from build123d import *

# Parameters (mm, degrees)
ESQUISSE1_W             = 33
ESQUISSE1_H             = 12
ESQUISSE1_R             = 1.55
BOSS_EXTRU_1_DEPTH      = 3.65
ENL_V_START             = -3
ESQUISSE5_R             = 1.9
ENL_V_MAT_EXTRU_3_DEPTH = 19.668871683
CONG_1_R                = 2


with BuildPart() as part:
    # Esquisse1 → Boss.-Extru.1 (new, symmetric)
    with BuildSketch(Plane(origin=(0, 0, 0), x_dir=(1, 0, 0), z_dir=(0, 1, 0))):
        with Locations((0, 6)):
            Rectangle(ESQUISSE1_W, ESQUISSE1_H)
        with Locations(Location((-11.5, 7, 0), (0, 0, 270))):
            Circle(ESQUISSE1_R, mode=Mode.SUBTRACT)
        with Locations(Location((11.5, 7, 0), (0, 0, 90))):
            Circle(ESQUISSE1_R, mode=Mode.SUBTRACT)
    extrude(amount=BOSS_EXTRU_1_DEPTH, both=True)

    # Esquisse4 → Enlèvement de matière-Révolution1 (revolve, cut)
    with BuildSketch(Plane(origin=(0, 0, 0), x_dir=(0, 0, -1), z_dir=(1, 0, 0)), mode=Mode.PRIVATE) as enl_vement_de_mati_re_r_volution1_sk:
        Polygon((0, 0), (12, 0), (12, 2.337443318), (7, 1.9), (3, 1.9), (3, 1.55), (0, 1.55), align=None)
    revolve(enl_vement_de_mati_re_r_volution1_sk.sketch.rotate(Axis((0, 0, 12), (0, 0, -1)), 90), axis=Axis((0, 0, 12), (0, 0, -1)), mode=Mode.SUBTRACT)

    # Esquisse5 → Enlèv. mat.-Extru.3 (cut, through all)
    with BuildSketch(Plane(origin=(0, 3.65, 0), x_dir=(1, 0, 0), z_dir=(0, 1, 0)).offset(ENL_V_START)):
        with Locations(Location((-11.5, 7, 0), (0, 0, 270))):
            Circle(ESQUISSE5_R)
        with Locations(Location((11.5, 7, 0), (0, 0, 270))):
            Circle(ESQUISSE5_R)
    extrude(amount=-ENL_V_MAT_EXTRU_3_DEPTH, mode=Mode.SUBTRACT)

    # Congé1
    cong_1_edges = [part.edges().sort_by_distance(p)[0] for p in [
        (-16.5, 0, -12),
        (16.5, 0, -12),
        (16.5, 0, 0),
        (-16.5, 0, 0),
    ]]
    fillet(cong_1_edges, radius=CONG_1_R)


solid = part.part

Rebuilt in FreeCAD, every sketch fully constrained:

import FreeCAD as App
import Part
import Sketcher
from FreeCAD import Vector
Q = App.Units.Quantity


def edges_at(feature, points):
    """Names of the edges that pass closest to the given points."""
    edges = feature.Shape.Edges
    near = lambda p: min(range(len(edges)), key=lambda i: edges[i].distToShape(Part.Vertex(*p))[0])
    return sorted({f"Edge{near(p) + 1}" for p in points})


def add_polygon(sketch, points):
    """Adds a closed chain of lines whose ends are joined by coincident constraints."""
    first, n = sketch.GeometryCount, len(points)
    for a, b in zip(points, points[1:] + points[:1]):
        sketch.addGeometry(Part.LineSegment(App.Vector(*a, 0), App.Vector(*b, 0)), False)
    for i in range(n):
        sketch.addConstraint(Sketcher.Constraint("Coincident", first + i, 2, first + (i + 1) % n, 1))

doc = App.newDocument("Part")
params = doc.addObject("Spreadsheet::Sheet", "Params")
for row, (alias, value) in enumerate([
    ("sketch1_diameter", "3.1 mm"),
    ("sketch1_width", "33 mm"),
    ("sketch1_height", "12 mm"),
    ("pad1_length", "7.3 mm"),
    ("sketch2_height", "12 mm"),
    ("sketch2_height2", "4 mm"),
    ("sketch2_height3", "3 mm"),
    ("sketch2_width", "0.35 mm"),
    ("sketch2_width2", "1.55 mm"),
    ("groove_angle", "360 deg"),
    ("sketch3_diameter", "3.8 mm"),
    ("fillet_radius", "2 mm"),
], start=1):
    params.set(f"A{row}", alias)
    params.set(f"B{row}", "=" + value)
    params.setAlias(f"B{row}", alias)

body = doc.addObject("PartDesign::Body", "Body")

sketch1 = body.newObject("Sketcher::SketchObject", "Sketch")
sketch1.AttachmentSupport = (doc.getObject("XZ_Plane"), [""])
sketch1.MapMode = "FlatFace"
add_polygon(sketch1, [(-16.5, -12), (-16.5, 0), (16.5, 0), (16.5, -12)])
sketch1.addGeometry(Part.Circle(Vector(-11.5, -7, 0), Vector(0, 0, 1), 1.6), False)
sketch1.addGeometry(Part.Circle(Vector(11.5, -7, 0), Vector(0, 0, 1), 1.6), False)
sketch1.addConstraint([
    Sketcher.Constraint("Vertical", 0),
    Sketcher.Constraint("Horizontal", 1),
    Sketcher.Constraint("Vertical", 2),
    Sketcher.Constraint("Horizontal", 3),
    Sketcher.Constraint("Equal", 4, 5),
    Sketcher.Constraint("Symmetric", 0, 2, 1, 2, -1, 1),
    Sketcher.Constraint("Symmetric", 4, 3, 5, 3, -2),
    Sketcher.Constraint("Diameter", 4, Q("3.1 mm")),
    Sketcher.Constraint("DistanceX", 1, 1, 1, 2, Q("33 mm")),
    Sketcher.Constraint("DistanceY", 0, 1, 0, 2, Q("12 mm")),
    Sketcher.Constraint("DistanceY", 4, 3, -1, 1, Q("7 mm")),
    Sketcher.Constraint("DistanceX", 4, 3, 5, 3, Q("23 mm")),
])
sketch1.setExpression("Constraints[11]", "Params.sketch1_diameter")
sketch1.setExpression("Constraints[12]", "Params.sketch1_width")
sketch1.setExpression("Constraints[13]", "Params.sketch1_height")
pad1 = body.newObject("PartDesign::Pad", "Pad")
pad1.Profile = sketch1
pad1.setExpression("Length", "Params.pad1_length")
pad1.Midplane = True

sketch2 = body.newObject("Sketcher::SketchObject", "Sketch001")
sketch2.AttachmentSupport = (doc.getObject("YZ_Plane"), [""])
sketch2.MapMode = "FlatFace"
add_polygon(sketch2, [(0, 0), (0, -12), (2.34, -12), (1.9, -7), (1.9, -3), (1.55, -3), (1.55, 0)])
sketch2.addConstraint([
    Sketcher.Constraint("Vertical", 0),
    Sketcher.Constraint("Horizontal", 1),
    Sketcher.Constraint("Vertical", 3),
    Sketcher.Constraint("Horizontal", 4),
    Sketcher.Constraint("Vertical", 5),
    Sketcher.Constraint("Horizontal", 6),
    Sketcher.Constraint("Coincident", 6, 2, -1, 1),
    Sketcher.Constraint("DistanceY", 0, 2, 0, 1, Q("12 mm")),
    Sketcher.Constraint("DistanceY", 3, 1, 3, 2, Q("4 mm")),
    Sketcher.Constraint("DistanceY", 5, 1, 5, 2, Q("3 mm")),
    Sketcher.Constraint("Angle", 2, Q("95 deg")),
    Sketcher.Constraint("DistanceX", 4, 2, 4, 1, Q("0.35 mm")),
    Sketcher.Constraint("DistanceX", 6, 2, 6, 1, Q("1.55 mm")),
])
sketch2.setExpression("Constraints[14]", "Params.sketch2_height")
sketch2.setExpression("Constraints[15]", "Params.sketch2_height2")
sketch2.setExpression("Constraints[16]", "Params.sketch2_height3")
sketch2.setExpression("Constraints[18]", "Params.sketch2_width")
sketch2.setExpression("Constraints[19]", "Params.sketch2_width2")
groove = body.newObject("PartDesign::Groove", "Groove")
groove.Profile = sketch2
groove.ReferenceAxis = (sketch2, ["V_Axis"])
groove.setExpression("Angle", "Params.groove_angle")

sketch3 = body.newObject("Sketcher::SketchObject", "Sketch002")
sketch3.AttachmentSupport = (doc.getObject("XZ_Plane"), [""])
sketch3.MapMode = "FlatFace"
sketch3.AttachmentOffset = App.Placement(Vector(0, 0, -0.65), App.Rotation())
sketch3.addGeometry([
    Part.Circle(Vector(-11.5, -7, 0), Vector(0, 0, 1), 1.9),
    Part.Circle(Vector(11.5, -7, 0), Vector(0, 0, 1), 1.9),
], False)
sketch3.addConstraint([
    Sketcher.Constraint("Equal", 0, 1),
    Sketcher.Constraint("Symmetric", 0, 3, 1, 3, -2),
    Sketcher.Constraint("Diameter", 0, Q("3.8 mm")),
    Sketcher.Constraint("DistanceY", 0, 3, -1, 1, Q("7 mm")),
    Sketcher.Constraint("DistanceX", 0, 3, 1, 3, Q("23 mm")),
])
sketch3.setExpression("Constraints[2]", "Params.sketch3_diameter")
pocket1 = body.newObject("PartDesign::Pocket", "Pocket")
pocket1.Profile = sketch3
pocket1.Type = "ThroughAll"
pocket1.Reversed = True
doc.recompute()

fillet = body.newObject("PartDesign::Fillet", "Fillet")
fillet.Base = (pocket1, edges_at(pocket1, [
    (-16.5, 0, -12),
    (16.5, 0, -12),
    (16.5, 0, 0),
    (-16.5, 0, 0),
]))
fillet.setExpression("Radius", "Params.fillet_radius")

doc.recompute()
